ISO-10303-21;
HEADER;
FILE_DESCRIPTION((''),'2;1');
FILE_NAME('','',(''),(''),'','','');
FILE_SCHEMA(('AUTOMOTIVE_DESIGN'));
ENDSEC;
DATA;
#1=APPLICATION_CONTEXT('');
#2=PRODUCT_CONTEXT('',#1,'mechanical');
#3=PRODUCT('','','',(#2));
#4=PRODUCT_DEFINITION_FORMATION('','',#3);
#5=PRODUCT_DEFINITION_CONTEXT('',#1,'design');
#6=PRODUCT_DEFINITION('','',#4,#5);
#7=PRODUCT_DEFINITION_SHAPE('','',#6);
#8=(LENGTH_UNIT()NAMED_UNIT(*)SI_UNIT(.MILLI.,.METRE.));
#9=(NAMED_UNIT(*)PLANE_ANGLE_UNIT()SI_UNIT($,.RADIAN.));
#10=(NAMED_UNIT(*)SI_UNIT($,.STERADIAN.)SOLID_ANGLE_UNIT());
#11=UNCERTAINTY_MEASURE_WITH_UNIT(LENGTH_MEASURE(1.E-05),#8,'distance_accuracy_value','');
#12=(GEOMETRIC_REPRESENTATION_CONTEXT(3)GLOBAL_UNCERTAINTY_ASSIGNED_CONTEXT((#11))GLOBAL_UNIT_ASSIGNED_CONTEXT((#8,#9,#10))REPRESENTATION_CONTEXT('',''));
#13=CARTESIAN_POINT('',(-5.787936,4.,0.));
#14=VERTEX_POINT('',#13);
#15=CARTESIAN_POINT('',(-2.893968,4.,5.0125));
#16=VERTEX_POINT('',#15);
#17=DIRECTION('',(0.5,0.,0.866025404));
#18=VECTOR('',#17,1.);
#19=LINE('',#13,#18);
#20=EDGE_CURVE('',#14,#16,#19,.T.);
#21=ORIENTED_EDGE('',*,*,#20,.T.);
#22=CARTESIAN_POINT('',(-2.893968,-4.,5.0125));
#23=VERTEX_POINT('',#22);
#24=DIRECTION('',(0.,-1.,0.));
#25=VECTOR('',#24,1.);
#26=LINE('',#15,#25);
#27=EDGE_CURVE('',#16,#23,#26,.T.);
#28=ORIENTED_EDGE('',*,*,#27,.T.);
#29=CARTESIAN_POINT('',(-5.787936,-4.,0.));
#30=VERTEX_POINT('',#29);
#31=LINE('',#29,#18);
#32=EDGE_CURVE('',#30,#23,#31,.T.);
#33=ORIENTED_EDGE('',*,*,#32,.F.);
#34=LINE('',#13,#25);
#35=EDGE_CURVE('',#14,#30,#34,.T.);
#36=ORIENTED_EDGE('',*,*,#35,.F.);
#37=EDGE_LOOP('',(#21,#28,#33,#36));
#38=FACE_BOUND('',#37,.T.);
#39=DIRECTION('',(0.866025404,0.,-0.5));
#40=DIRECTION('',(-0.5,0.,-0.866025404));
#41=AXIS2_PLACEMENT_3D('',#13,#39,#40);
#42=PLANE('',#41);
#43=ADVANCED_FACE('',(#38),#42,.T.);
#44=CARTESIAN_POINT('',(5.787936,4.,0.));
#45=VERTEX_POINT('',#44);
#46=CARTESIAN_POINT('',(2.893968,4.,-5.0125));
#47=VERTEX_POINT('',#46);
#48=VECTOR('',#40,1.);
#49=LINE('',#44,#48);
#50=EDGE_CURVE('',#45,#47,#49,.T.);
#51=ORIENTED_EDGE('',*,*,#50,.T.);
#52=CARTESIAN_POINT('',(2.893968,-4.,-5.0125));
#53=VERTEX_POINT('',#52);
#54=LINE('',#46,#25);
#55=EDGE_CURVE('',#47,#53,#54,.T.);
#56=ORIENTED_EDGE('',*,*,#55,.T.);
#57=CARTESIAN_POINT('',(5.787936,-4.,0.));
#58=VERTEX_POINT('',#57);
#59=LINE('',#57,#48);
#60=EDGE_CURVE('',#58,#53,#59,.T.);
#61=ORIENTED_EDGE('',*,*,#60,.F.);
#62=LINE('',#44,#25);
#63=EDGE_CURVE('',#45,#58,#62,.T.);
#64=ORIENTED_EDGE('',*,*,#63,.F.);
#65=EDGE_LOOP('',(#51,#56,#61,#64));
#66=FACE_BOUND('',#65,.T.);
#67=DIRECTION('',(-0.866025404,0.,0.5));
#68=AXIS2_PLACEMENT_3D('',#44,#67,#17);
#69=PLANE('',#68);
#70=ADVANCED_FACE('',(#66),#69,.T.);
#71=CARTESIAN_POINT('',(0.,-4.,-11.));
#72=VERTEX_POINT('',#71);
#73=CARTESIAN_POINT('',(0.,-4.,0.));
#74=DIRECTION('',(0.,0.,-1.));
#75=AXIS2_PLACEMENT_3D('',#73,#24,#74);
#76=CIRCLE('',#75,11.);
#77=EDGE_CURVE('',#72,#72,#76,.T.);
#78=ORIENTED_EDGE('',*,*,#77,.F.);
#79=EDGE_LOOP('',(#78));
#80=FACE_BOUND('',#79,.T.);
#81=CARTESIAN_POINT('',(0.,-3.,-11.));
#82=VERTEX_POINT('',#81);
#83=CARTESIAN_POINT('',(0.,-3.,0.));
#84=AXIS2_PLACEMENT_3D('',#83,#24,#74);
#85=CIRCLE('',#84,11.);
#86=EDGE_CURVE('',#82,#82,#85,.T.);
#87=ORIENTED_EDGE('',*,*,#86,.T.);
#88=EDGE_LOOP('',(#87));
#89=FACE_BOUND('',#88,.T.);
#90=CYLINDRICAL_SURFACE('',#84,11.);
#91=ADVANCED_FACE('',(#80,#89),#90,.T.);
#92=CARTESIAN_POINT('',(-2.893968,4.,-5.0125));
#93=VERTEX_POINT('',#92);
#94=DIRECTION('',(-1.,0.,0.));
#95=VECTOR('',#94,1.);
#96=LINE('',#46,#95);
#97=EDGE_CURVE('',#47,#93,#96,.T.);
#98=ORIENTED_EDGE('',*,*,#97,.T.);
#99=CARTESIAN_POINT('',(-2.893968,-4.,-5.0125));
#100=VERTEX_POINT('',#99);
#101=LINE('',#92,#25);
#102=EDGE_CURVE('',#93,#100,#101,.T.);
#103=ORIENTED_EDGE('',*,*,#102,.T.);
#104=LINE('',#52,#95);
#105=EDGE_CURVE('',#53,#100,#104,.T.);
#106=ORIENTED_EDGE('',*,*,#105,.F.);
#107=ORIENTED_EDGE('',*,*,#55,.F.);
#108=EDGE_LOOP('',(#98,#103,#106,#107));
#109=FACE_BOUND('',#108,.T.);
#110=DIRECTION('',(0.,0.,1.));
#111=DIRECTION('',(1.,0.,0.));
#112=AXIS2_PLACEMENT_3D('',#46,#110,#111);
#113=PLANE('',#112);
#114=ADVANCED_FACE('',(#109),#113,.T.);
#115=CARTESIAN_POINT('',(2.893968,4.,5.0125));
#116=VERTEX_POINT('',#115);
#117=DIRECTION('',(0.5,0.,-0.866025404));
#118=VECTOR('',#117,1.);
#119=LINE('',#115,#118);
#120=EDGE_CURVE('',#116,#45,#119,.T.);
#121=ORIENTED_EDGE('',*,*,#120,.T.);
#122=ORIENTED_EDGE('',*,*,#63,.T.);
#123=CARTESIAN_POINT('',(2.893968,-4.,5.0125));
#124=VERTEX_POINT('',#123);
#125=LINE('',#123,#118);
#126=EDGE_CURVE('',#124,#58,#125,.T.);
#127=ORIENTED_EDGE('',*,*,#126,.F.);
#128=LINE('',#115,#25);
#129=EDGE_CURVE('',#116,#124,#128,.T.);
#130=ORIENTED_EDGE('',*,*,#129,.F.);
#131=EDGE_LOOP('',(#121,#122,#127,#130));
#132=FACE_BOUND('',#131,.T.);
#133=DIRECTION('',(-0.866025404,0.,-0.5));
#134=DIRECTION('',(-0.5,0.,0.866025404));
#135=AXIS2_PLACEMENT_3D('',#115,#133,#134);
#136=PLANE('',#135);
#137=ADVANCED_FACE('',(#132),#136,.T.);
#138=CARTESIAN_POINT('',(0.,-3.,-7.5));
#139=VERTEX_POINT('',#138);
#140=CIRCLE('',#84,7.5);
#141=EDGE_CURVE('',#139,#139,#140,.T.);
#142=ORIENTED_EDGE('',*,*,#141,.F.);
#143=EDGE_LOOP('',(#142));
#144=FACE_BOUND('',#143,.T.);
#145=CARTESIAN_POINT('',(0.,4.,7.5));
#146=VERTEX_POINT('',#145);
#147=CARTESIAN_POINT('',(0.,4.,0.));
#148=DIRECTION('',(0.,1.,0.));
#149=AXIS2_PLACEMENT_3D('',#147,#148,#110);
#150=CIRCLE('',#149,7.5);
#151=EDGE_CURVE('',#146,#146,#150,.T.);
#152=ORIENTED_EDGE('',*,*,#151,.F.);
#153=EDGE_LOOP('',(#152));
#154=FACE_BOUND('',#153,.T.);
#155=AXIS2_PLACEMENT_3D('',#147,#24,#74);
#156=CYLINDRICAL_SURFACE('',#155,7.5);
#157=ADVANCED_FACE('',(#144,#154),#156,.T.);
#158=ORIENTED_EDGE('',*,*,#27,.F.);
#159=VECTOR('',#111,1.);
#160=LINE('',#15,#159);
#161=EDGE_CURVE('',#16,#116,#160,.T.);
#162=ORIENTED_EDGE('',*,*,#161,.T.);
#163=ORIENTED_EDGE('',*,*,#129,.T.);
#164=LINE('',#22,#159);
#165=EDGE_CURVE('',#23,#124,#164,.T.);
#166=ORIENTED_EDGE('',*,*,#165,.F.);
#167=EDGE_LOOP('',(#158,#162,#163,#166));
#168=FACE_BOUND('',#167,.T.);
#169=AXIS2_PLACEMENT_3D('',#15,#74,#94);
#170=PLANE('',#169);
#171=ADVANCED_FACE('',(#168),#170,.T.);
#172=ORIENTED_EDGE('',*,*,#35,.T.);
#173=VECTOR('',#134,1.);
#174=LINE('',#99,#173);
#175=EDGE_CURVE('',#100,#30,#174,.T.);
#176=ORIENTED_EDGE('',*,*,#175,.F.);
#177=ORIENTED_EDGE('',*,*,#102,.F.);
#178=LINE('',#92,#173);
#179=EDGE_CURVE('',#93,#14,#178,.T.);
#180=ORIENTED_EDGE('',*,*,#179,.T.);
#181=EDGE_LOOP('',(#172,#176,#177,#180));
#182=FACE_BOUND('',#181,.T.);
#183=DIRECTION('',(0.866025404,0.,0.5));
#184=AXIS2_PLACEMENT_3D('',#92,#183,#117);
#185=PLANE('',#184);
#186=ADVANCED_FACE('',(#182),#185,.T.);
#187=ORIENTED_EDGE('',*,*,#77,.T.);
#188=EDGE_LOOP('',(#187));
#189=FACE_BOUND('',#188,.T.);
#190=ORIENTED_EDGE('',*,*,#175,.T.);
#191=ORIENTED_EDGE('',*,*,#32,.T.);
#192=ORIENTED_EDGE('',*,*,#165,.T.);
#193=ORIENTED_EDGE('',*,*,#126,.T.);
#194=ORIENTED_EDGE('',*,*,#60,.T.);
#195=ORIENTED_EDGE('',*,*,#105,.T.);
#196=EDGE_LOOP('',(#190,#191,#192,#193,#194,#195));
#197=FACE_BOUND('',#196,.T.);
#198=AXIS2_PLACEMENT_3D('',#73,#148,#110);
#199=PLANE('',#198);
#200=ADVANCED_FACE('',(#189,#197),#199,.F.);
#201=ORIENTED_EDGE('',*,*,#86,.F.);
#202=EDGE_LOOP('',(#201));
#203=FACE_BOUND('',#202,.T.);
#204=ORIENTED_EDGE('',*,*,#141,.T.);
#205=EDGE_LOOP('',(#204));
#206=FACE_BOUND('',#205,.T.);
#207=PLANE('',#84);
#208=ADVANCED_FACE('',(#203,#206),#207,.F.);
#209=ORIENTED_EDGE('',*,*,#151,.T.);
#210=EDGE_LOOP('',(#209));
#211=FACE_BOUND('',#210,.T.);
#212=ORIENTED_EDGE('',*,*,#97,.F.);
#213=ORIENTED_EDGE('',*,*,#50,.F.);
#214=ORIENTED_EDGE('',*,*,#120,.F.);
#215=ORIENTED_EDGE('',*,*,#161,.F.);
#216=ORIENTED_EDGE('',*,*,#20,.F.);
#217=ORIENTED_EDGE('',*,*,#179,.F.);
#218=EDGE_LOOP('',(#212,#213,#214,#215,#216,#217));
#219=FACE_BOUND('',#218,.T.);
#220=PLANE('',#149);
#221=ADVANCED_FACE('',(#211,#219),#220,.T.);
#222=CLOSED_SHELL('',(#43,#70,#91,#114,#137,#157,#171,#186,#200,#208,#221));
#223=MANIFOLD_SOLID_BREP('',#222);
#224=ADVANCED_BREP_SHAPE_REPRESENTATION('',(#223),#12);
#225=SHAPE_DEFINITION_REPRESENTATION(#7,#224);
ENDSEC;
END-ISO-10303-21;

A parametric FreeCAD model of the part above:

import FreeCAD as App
import Part
import Sketcher
Q = App.Units.Quantity


def add_polygon(sketch, points):
    """Adds a closed chain of lines whose ends are joined by coincident constraints."""
    first, n = sketch.GeometryCount, len(points)
    for a, b in zip(points, points[1:] + points[:1]):
        sketch.addGeometry(Part.LineSegment(App.Vector(*a, 0), App.Vector(*b, 0)), False)
    for i in range(n):
        sketch.addConstraint(Sketcher.Constraint("Coincident", first + i, 2, first + (i + 1) % n, 1))

doc = App.newDocument("Part")
body = doc.addObject("PartDesign::Body", "Body")

# Sketch on XZ plane
sketch1 = body.newObject("Sketcher::SketchObject", "Sketch")
sketch1.AttachmentSupport = (doc.getObject("XZ_Plane"), [""])
sketch1.MapMode = "FlatFace"
sketch1.addGeometry(Part.Circle(App.Vector(0, 0, 0), App.Vector(0, 0, 1), 7.5), False)  # 0
add_polygon(sketch1, [(2.893968, 5.0125), (-2.893968, 5.0125), (-5.787936, 0), (-2.893968, -5.0125), (2.893968, -5.0125), (5.787936, 0)])  # lines 1-6
sketch1.addConstraint([
    Sketcher.Constraint("Horizontal", 1),
    Sketcher.Constraint("Horizontal", 4),
    Sketcher.Constraint("Coincident", 0, 3, -1, 1),
    Sketcher.Constraint("Symmetric", 1, 2, 4, 2, -1, 1),
    Sketcher.Constraint("Symmetric", 2, 2, 5, 2, -1, 1),
    Sketcher.Constraint("PointOnObject", 2, 2, -1),
    Sketcher.Constraint("Parallel", 3, 6),
    Sketcher.Constraint("Vertical", 1, 2, 3, 2),
    Sketcher.Constraint("Diameter", 0, 15.0),
    Sketcher.Constraint("Angle", 2, Q("-120 deg")),
    Sketcher.Constraint("DistanceY", 3, 2, 1, 2, 10.025),
    Sketcher.Constraint("DistanceX", 1, 2, 1, 1, 5.787936),
])
pad1 = body.newObject("PartDesign::Pad", "Pad")
pad1.Profile = sketch1
pad1.Length = 8
pad1.Midplane = True

# Sketch on XZ plane
sketch2 = body.newObject("Sketcher::SketchObject", "Sketch001")
sketch2.AttachmentSupport = (doc.getObject("XZ_Plane"), [""])
sketch2.MapMode = "FlatFace"
sketch2.AttachmentOffset = App.Placement(App.Vector(0, 0, 4), App.Rotation())
sketch2.addGeometry([
    Part.Circle(App.Vector(0, 0, 0), App.Vector(0, 0, 1), 11),
    Part.Circle(App.Vector(0, 0, 0), App.Vector(0, 0, 1), 7.5),
], False)
sketch2.addConstraint([
    Sketcher.Constraint("Coincident", 0, 3, -1, 1),
    Sketcher.Constraint("Coincident", 1, 3, -1, 1),
    Sketcher.Constraint("Diameter", 0, 22.0),
    Sketcher.Constraint("Diameter", 1, 15.0),
])
pad2 = body.newObject("PartDesign::Pad", "Pad001")
pad2.Profile = sketch2
pad2.Length = 1
pad2.Reversed = True

doc.recompute()
